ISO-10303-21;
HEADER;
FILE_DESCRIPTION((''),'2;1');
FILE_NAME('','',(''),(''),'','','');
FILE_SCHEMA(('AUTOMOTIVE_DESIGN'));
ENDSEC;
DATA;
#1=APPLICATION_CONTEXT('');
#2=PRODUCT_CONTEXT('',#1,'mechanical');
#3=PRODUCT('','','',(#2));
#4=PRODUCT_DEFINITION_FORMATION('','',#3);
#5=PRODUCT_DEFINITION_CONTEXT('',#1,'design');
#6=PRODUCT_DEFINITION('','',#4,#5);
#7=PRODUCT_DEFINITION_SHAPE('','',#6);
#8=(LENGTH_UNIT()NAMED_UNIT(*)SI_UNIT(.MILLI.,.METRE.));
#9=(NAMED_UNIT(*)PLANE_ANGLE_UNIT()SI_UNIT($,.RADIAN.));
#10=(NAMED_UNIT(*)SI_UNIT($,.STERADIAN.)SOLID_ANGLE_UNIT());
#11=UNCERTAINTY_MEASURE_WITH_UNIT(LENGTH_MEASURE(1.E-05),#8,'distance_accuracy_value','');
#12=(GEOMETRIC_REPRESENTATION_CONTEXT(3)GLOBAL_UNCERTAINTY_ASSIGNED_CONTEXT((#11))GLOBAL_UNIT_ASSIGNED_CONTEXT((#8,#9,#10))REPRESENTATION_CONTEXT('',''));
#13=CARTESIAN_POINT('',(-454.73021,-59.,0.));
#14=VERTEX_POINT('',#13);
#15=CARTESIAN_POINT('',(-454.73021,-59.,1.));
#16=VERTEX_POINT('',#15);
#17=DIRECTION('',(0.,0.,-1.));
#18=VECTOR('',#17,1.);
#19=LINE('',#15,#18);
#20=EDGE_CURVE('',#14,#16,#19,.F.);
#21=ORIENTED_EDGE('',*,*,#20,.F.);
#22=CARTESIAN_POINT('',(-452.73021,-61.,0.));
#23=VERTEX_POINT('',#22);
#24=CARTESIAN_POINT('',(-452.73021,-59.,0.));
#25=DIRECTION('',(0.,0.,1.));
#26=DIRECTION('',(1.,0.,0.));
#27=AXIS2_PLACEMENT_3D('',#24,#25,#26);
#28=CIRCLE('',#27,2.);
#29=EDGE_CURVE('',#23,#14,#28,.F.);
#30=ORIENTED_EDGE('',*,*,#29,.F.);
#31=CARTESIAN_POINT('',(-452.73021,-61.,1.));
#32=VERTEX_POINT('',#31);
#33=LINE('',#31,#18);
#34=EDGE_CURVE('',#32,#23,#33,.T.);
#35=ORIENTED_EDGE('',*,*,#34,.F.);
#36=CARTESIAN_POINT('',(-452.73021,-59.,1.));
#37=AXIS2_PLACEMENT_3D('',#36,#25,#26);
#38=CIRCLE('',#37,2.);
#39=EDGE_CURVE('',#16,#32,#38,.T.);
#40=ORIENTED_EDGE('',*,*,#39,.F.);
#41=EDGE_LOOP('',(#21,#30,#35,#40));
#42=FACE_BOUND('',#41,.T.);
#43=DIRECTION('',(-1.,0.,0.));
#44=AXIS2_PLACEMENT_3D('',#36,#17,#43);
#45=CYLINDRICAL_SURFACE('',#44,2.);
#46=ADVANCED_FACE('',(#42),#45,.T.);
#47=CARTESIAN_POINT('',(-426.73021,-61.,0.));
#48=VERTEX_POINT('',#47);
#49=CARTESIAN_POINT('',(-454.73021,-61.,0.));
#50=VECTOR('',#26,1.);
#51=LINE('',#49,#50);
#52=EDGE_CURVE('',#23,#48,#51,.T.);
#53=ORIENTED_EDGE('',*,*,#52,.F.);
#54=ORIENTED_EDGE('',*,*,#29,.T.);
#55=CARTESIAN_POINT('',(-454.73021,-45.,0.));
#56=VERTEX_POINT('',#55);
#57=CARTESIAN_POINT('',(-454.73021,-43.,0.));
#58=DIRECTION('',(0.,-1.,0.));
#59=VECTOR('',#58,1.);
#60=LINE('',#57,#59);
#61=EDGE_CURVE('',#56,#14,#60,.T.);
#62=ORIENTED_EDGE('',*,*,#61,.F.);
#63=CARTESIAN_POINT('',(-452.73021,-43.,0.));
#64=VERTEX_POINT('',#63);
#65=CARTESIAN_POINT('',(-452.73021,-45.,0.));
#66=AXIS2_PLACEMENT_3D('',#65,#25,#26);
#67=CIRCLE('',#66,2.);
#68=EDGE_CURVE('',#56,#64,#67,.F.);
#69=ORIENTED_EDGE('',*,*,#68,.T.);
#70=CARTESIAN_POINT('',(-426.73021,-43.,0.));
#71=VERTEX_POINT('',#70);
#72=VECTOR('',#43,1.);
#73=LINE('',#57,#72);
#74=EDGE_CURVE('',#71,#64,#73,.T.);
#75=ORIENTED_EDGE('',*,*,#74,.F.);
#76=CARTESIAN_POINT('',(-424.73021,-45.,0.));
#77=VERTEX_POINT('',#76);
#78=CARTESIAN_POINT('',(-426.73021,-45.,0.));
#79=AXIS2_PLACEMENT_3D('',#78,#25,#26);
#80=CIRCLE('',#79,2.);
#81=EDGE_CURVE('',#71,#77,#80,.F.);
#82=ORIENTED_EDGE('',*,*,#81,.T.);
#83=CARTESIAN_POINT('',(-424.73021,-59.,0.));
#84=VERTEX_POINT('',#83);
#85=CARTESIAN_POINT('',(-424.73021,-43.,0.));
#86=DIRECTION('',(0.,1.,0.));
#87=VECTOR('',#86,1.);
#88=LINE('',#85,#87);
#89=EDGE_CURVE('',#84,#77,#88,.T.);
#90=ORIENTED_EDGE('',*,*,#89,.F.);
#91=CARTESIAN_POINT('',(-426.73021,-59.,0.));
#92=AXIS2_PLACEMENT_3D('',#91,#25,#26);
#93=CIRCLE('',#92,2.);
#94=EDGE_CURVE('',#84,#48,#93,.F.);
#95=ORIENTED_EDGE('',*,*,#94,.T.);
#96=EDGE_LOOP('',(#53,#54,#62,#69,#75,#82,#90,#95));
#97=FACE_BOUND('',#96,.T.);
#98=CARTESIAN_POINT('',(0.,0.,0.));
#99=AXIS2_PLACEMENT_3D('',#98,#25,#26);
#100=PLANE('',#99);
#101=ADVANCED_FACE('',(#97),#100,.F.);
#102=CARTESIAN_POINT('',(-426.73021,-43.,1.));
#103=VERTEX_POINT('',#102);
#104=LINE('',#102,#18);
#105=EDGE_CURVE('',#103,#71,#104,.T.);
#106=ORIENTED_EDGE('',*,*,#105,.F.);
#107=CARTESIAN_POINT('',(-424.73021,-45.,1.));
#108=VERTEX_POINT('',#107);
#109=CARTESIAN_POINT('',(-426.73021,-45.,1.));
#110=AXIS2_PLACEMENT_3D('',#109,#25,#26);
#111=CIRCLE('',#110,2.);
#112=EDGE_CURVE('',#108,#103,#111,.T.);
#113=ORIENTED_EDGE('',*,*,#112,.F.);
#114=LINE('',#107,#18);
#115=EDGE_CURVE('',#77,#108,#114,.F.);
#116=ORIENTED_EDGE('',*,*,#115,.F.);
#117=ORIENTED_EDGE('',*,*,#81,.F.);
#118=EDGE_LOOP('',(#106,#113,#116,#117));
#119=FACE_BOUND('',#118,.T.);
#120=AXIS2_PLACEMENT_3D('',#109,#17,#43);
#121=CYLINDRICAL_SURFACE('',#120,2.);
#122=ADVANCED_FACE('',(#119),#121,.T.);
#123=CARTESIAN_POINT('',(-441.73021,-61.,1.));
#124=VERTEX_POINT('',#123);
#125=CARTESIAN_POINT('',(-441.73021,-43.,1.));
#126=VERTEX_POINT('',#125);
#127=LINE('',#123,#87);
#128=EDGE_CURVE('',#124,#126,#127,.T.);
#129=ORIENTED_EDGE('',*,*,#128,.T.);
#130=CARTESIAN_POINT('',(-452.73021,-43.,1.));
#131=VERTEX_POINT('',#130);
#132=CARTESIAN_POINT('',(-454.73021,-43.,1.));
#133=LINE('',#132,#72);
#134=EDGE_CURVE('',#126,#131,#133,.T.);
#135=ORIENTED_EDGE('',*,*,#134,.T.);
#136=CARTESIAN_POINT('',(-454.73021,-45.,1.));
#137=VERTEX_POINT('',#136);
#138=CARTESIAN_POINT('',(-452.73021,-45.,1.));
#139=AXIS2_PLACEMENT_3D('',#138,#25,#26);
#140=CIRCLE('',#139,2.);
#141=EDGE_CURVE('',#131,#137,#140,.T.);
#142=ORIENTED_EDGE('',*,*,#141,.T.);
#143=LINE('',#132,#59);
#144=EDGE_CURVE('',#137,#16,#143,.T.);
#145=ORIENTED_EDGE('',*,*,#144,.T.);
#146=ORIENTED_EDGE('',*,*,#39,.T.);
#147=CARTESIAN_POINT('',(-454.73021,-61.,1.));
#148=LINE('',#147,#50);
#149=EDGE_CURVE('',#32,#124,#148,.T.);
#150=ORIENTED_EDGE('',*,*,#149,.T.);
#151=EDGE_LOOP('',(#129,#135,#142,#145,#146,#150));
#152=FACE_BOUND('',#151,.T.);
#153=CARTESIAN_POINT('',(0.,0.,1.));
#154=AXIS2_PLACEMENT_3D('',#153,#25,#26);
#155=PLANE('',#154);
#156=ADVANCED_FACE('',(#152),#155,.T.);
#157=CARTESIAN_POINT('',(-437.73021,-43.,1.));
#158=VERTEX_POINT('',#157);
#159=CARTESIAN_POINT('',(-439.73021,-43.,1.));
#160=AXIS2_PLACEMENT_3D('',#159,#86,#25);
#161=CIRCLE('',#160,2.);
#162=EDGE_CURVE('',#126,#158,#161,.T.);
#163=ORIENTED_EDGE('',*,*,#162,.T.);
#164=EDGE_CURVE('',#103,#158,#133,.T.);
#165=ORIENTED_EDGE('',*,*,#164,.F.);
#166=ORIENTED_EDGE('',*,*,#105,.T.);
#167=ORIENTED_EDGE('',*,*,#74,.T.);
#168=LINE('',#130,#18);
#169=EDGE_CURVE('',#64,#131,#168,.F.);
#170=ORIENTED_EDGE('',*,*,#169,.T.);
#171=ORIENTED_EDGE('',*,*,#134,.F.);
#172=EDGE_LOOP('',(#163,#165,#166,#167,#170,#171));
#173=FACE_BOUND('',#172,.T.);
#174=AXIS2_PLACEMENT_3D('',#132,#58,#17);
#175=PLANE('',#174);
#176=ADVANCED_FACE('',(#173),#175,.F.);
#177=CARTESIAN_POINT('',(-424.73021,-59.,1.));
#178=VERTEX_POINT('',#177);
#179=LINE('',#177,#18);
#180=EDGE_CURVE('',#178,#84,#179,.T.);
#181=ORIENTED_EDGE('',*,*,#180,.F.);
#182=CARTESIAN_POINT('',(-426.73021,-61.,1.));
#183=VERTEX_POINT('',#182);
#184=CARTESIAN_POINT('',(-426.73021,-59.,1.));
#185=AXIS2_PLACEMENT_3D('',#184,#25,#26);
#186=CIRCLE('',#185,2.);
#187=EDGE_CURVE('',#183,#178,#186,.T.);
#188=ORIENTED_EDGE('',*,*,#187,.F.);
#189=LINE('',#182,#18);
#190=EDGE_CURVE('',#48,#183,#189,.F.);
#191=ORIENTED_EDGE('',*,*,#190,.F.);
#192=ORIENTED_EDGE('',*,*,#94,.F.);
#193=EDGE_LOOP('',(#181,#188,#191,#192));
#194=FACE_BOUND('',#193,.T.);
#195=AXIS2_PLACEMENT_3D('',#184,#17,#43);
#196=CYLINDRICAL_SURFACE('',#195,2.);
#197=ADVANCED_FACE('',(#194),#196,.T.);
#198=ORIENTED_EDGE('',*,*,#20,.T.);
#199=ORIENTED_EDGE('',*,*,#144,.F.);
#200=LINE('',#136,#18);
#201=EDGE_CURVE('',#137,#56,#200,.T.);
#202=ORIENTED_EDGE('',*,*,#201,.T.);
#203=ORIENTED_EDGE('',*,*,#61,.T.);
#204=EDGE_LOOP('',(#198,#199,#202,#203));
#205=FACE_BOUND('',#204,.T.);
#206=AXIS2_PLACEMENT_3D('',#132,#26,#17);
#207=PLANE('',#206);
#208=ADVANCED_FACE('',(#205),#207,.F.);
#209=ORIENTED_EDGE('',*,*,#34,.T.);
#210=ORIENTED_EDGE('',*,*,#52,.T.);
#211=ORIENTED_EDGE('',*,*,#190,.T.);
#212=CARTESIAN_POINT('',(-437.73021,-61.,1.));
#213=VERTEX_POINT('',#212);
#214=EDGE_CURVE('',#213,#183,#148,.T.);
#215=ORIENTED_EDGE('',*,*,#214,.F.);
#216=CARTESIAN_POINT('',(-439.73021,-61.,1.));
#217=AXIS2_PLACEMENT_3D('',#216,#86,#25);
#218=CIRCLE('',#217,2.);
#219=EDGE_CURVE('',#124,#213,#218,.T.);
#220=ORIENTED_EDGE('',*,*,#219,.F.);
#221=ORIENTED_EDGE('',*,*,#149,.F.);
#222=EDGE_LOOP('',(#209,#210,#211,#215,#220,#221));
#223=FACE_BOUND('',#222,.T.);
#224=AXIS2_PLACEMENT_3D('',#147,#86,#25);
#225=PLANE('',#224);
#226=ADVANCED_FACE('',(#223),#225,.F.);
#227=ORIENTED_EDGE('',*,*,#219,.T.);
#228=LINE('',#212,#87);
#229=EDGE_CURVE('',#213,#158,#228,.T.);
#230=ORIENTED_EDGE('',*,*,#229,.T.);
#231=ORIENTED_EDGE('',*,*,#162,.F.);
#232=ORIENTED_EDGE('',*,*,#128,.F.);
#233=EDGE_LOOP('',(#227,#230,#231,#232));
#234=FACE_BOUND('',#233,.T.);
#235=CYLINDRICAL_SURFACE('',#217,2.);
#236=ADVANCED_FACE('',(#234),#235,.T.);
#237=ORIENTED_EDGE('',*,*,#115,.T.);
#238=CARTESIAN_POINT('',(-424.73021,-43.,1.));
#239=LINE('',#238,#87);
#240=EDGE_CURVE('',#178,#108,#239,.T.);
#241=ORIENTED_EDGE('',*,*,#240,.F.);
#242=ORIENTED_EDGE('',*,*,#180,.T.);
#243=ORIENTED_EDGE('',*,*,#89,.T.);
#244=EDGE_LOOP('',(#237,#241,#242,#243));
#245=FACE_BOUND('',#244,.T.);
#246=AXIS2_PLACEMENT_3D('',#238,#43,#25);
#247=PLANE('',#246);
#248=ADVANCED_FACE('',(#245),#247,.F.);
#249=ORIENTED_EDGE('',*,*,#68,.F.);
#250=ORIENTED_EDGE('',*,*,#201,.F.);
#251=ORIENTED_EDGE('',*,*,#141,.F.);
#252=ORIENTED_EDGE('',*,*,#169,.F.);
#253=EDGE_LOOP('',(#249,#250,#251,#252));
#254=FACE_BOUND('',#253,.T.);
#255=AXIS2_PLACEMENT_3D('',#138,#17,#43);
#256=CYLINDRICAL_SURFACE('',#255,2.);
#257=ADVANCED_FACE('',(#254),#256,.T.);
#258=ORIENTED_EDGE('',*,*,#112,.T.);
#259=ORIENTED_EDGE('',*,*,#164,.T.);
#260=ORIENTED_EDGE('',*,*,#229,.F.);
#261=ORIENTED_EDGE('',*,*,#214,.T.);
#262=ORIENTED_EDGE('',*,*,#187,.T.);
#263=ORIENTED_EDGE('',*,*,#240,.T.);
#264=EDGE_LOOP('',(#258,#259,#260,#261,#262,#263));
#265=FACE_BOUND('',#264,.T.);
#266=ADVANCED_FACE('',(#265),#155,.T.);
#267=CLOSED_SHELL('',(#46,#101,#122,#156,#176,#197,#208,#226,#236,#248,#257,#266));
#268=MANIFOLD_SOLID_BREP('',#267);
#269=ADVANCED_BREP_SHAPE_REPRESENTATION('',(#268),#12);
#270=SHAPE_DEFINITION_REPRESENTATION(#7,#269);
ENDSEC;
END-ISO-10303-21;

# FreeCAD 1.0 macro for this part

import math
import FreeCAD as App
import Part
import Sketcher

V = App.Vector


def edges_at(feature, points):
    """Names of the edges that pass closest to the given points."""
    edges = feature.Shape.Edges
    near = lambda p: min(range(len(edges)), key=lambda i: edges[i].distToShape(Part.Vertex(*p))[0])
    return sorted({f"Edge{near(p) + 1}" for p in points})

doc = App.newDocument("Part")
params = doc.addObject("Spreadsheet::Sheet", "Params")
for row, (alias, value) in enumerate([
    ("sketch1_width", "30 mm"),
    ("sketch1_height", "18 mm"),
    ("pad1_length", "1 mm"),
    ("sketch2_radius", "2 mm"),
    ("pad2_length", "18 mm"),
    ("fillet_radius", "2 mm"),
], start=1):
    params.set(f"A{row}", alias)
    params.set(f"B{row}", "=" + value)
    params.setAlias(f"B{row}", alias)

body = doc.addObject("PartDesign::Body", "Body")

# Sketch on XY plane
sketch1 = body.newObject("Sketcher::SketchObject", "Sketch")
sketch1.AttachmentSupport = (doc.getObject("XY_Plane"), [""])
sketch1.MapMode = "FlatFace"
sketch1.addGeometry([
    Part.LineSegment(V(-454.73021, -43, 0), V(-454.73021, -61, 0)),
    Part.LineSegment(V(-454.73021, -61, 0), V(-424.73021, -61, 0)),
    Part.LineSegment(V(-424.73021, -61, 0), V(-424.73021, -43, 0)),
    Part.LineSegment(V(-424.73021, -43, 0), V(-454.73021, -43, 0)),
], False)
sketch1.addConstraint([
    Sketcher.Constraint("Coincident", 0, 2, 1, 1),
    Sketcher.Constraint("Coincident", 1, 2, 2, 1),
    Sketcher.Constraint("Coincident", 2, 2, 3, 1),
    Sketcher.Constraint("Coincident", 3, 2, 0, 1),
    Sketcher.Constraint("Vertical", 0),
    Sketcher.Constraint("Horizontal", 1),
    Sketcher.Constraint("Vertical", 2),
    Sketcher.Constraint("Horizontal", 3),
    Sketcher.Constraint("DistanceX", 1, 1, 1, 2, 30.0),
    Sketcher.Constraint("DistanceY", 0, 2, 0, 1, 18.0),
    Sketcher.Constraint("DistanceY", 0, 2, -1, 1, 61.0),
    Sketcher.Constraint("DistanceX", 0, 2, -1, 1, 454.73021),
])
sketch1.setExpression("Constraints[8]", "Params.sketch1_width")
sketch1.setExpression("Constraints[9]", "Params.sketch1_height")
pad1 = body.newObject("PartDesign::Pad", "Pad")
pad1.Profile = sketch1
pad1.setExpression("Length", "Params.pad1_length")

# Sketch on XZ plane
sketch2 = body.newObject("Sketcher::SketchObject", "Sketch001")
sketch2.AttachmentSupport = (doc.getObject("XZ_Plane"), [""])
sketch2.MapMode = "FlatFace"
sketch2.AttachmentOffset = App.Placement(V(0, 0, 43), App.Rotation())
sketch2.addGeometry([
    Part.LineSegment(V(-437.73021, 1, 0), V(-441.73021, 1, 0)),
    Part.ArcOfCircle(Part.Circle(V(-439.73021, 1, 0), V(0, 0, 1), 2), math.radians(0), math.radians(180)),
], False)
sketch2.addConstraint([
    Sketcher.Constraint("Coincident", 0, 1, 1, 1),
    Sketcher.Constraint("Coincident", 1, 2, 0, 2),
    Sketcher.Constraint("Horizontal", 0),
    Sketcher.Constraint("Horizontal", 1, 3, 0, 1),
    Sketcher.Constraint("Radius", 1, 2.0),
    Sketcher.Constraint("DistanceY", -1, 1, 1, 3, 1.0),
    Sketcher.Constraint("DistanceX", 1, 3, -1, 1, 439.73021),
])
sketch2.setExpression("Constraints[4]", "Params.sketch2_radius")
pad2 = body.newObject("PartDesign::Pad", "Pad001")
pad2.Profile = sketch2
pad2.setExpression("Length", "Params.pad2_length")
doc.recompute()

fillet = body.newObject("PartDesign::Fillet", "Fillet")
fillet.Base = (pad2, edges_at(pad2, [
    (-454.73, -43, 0.5),
    (-424.73, -43, 0.5),
    (-454.73, -61, 0.5),
    (-424.73, -61, 0.5),
]))
fillet.setExpression("Radius", "Params.fillet_radius")

doc.recompute()
